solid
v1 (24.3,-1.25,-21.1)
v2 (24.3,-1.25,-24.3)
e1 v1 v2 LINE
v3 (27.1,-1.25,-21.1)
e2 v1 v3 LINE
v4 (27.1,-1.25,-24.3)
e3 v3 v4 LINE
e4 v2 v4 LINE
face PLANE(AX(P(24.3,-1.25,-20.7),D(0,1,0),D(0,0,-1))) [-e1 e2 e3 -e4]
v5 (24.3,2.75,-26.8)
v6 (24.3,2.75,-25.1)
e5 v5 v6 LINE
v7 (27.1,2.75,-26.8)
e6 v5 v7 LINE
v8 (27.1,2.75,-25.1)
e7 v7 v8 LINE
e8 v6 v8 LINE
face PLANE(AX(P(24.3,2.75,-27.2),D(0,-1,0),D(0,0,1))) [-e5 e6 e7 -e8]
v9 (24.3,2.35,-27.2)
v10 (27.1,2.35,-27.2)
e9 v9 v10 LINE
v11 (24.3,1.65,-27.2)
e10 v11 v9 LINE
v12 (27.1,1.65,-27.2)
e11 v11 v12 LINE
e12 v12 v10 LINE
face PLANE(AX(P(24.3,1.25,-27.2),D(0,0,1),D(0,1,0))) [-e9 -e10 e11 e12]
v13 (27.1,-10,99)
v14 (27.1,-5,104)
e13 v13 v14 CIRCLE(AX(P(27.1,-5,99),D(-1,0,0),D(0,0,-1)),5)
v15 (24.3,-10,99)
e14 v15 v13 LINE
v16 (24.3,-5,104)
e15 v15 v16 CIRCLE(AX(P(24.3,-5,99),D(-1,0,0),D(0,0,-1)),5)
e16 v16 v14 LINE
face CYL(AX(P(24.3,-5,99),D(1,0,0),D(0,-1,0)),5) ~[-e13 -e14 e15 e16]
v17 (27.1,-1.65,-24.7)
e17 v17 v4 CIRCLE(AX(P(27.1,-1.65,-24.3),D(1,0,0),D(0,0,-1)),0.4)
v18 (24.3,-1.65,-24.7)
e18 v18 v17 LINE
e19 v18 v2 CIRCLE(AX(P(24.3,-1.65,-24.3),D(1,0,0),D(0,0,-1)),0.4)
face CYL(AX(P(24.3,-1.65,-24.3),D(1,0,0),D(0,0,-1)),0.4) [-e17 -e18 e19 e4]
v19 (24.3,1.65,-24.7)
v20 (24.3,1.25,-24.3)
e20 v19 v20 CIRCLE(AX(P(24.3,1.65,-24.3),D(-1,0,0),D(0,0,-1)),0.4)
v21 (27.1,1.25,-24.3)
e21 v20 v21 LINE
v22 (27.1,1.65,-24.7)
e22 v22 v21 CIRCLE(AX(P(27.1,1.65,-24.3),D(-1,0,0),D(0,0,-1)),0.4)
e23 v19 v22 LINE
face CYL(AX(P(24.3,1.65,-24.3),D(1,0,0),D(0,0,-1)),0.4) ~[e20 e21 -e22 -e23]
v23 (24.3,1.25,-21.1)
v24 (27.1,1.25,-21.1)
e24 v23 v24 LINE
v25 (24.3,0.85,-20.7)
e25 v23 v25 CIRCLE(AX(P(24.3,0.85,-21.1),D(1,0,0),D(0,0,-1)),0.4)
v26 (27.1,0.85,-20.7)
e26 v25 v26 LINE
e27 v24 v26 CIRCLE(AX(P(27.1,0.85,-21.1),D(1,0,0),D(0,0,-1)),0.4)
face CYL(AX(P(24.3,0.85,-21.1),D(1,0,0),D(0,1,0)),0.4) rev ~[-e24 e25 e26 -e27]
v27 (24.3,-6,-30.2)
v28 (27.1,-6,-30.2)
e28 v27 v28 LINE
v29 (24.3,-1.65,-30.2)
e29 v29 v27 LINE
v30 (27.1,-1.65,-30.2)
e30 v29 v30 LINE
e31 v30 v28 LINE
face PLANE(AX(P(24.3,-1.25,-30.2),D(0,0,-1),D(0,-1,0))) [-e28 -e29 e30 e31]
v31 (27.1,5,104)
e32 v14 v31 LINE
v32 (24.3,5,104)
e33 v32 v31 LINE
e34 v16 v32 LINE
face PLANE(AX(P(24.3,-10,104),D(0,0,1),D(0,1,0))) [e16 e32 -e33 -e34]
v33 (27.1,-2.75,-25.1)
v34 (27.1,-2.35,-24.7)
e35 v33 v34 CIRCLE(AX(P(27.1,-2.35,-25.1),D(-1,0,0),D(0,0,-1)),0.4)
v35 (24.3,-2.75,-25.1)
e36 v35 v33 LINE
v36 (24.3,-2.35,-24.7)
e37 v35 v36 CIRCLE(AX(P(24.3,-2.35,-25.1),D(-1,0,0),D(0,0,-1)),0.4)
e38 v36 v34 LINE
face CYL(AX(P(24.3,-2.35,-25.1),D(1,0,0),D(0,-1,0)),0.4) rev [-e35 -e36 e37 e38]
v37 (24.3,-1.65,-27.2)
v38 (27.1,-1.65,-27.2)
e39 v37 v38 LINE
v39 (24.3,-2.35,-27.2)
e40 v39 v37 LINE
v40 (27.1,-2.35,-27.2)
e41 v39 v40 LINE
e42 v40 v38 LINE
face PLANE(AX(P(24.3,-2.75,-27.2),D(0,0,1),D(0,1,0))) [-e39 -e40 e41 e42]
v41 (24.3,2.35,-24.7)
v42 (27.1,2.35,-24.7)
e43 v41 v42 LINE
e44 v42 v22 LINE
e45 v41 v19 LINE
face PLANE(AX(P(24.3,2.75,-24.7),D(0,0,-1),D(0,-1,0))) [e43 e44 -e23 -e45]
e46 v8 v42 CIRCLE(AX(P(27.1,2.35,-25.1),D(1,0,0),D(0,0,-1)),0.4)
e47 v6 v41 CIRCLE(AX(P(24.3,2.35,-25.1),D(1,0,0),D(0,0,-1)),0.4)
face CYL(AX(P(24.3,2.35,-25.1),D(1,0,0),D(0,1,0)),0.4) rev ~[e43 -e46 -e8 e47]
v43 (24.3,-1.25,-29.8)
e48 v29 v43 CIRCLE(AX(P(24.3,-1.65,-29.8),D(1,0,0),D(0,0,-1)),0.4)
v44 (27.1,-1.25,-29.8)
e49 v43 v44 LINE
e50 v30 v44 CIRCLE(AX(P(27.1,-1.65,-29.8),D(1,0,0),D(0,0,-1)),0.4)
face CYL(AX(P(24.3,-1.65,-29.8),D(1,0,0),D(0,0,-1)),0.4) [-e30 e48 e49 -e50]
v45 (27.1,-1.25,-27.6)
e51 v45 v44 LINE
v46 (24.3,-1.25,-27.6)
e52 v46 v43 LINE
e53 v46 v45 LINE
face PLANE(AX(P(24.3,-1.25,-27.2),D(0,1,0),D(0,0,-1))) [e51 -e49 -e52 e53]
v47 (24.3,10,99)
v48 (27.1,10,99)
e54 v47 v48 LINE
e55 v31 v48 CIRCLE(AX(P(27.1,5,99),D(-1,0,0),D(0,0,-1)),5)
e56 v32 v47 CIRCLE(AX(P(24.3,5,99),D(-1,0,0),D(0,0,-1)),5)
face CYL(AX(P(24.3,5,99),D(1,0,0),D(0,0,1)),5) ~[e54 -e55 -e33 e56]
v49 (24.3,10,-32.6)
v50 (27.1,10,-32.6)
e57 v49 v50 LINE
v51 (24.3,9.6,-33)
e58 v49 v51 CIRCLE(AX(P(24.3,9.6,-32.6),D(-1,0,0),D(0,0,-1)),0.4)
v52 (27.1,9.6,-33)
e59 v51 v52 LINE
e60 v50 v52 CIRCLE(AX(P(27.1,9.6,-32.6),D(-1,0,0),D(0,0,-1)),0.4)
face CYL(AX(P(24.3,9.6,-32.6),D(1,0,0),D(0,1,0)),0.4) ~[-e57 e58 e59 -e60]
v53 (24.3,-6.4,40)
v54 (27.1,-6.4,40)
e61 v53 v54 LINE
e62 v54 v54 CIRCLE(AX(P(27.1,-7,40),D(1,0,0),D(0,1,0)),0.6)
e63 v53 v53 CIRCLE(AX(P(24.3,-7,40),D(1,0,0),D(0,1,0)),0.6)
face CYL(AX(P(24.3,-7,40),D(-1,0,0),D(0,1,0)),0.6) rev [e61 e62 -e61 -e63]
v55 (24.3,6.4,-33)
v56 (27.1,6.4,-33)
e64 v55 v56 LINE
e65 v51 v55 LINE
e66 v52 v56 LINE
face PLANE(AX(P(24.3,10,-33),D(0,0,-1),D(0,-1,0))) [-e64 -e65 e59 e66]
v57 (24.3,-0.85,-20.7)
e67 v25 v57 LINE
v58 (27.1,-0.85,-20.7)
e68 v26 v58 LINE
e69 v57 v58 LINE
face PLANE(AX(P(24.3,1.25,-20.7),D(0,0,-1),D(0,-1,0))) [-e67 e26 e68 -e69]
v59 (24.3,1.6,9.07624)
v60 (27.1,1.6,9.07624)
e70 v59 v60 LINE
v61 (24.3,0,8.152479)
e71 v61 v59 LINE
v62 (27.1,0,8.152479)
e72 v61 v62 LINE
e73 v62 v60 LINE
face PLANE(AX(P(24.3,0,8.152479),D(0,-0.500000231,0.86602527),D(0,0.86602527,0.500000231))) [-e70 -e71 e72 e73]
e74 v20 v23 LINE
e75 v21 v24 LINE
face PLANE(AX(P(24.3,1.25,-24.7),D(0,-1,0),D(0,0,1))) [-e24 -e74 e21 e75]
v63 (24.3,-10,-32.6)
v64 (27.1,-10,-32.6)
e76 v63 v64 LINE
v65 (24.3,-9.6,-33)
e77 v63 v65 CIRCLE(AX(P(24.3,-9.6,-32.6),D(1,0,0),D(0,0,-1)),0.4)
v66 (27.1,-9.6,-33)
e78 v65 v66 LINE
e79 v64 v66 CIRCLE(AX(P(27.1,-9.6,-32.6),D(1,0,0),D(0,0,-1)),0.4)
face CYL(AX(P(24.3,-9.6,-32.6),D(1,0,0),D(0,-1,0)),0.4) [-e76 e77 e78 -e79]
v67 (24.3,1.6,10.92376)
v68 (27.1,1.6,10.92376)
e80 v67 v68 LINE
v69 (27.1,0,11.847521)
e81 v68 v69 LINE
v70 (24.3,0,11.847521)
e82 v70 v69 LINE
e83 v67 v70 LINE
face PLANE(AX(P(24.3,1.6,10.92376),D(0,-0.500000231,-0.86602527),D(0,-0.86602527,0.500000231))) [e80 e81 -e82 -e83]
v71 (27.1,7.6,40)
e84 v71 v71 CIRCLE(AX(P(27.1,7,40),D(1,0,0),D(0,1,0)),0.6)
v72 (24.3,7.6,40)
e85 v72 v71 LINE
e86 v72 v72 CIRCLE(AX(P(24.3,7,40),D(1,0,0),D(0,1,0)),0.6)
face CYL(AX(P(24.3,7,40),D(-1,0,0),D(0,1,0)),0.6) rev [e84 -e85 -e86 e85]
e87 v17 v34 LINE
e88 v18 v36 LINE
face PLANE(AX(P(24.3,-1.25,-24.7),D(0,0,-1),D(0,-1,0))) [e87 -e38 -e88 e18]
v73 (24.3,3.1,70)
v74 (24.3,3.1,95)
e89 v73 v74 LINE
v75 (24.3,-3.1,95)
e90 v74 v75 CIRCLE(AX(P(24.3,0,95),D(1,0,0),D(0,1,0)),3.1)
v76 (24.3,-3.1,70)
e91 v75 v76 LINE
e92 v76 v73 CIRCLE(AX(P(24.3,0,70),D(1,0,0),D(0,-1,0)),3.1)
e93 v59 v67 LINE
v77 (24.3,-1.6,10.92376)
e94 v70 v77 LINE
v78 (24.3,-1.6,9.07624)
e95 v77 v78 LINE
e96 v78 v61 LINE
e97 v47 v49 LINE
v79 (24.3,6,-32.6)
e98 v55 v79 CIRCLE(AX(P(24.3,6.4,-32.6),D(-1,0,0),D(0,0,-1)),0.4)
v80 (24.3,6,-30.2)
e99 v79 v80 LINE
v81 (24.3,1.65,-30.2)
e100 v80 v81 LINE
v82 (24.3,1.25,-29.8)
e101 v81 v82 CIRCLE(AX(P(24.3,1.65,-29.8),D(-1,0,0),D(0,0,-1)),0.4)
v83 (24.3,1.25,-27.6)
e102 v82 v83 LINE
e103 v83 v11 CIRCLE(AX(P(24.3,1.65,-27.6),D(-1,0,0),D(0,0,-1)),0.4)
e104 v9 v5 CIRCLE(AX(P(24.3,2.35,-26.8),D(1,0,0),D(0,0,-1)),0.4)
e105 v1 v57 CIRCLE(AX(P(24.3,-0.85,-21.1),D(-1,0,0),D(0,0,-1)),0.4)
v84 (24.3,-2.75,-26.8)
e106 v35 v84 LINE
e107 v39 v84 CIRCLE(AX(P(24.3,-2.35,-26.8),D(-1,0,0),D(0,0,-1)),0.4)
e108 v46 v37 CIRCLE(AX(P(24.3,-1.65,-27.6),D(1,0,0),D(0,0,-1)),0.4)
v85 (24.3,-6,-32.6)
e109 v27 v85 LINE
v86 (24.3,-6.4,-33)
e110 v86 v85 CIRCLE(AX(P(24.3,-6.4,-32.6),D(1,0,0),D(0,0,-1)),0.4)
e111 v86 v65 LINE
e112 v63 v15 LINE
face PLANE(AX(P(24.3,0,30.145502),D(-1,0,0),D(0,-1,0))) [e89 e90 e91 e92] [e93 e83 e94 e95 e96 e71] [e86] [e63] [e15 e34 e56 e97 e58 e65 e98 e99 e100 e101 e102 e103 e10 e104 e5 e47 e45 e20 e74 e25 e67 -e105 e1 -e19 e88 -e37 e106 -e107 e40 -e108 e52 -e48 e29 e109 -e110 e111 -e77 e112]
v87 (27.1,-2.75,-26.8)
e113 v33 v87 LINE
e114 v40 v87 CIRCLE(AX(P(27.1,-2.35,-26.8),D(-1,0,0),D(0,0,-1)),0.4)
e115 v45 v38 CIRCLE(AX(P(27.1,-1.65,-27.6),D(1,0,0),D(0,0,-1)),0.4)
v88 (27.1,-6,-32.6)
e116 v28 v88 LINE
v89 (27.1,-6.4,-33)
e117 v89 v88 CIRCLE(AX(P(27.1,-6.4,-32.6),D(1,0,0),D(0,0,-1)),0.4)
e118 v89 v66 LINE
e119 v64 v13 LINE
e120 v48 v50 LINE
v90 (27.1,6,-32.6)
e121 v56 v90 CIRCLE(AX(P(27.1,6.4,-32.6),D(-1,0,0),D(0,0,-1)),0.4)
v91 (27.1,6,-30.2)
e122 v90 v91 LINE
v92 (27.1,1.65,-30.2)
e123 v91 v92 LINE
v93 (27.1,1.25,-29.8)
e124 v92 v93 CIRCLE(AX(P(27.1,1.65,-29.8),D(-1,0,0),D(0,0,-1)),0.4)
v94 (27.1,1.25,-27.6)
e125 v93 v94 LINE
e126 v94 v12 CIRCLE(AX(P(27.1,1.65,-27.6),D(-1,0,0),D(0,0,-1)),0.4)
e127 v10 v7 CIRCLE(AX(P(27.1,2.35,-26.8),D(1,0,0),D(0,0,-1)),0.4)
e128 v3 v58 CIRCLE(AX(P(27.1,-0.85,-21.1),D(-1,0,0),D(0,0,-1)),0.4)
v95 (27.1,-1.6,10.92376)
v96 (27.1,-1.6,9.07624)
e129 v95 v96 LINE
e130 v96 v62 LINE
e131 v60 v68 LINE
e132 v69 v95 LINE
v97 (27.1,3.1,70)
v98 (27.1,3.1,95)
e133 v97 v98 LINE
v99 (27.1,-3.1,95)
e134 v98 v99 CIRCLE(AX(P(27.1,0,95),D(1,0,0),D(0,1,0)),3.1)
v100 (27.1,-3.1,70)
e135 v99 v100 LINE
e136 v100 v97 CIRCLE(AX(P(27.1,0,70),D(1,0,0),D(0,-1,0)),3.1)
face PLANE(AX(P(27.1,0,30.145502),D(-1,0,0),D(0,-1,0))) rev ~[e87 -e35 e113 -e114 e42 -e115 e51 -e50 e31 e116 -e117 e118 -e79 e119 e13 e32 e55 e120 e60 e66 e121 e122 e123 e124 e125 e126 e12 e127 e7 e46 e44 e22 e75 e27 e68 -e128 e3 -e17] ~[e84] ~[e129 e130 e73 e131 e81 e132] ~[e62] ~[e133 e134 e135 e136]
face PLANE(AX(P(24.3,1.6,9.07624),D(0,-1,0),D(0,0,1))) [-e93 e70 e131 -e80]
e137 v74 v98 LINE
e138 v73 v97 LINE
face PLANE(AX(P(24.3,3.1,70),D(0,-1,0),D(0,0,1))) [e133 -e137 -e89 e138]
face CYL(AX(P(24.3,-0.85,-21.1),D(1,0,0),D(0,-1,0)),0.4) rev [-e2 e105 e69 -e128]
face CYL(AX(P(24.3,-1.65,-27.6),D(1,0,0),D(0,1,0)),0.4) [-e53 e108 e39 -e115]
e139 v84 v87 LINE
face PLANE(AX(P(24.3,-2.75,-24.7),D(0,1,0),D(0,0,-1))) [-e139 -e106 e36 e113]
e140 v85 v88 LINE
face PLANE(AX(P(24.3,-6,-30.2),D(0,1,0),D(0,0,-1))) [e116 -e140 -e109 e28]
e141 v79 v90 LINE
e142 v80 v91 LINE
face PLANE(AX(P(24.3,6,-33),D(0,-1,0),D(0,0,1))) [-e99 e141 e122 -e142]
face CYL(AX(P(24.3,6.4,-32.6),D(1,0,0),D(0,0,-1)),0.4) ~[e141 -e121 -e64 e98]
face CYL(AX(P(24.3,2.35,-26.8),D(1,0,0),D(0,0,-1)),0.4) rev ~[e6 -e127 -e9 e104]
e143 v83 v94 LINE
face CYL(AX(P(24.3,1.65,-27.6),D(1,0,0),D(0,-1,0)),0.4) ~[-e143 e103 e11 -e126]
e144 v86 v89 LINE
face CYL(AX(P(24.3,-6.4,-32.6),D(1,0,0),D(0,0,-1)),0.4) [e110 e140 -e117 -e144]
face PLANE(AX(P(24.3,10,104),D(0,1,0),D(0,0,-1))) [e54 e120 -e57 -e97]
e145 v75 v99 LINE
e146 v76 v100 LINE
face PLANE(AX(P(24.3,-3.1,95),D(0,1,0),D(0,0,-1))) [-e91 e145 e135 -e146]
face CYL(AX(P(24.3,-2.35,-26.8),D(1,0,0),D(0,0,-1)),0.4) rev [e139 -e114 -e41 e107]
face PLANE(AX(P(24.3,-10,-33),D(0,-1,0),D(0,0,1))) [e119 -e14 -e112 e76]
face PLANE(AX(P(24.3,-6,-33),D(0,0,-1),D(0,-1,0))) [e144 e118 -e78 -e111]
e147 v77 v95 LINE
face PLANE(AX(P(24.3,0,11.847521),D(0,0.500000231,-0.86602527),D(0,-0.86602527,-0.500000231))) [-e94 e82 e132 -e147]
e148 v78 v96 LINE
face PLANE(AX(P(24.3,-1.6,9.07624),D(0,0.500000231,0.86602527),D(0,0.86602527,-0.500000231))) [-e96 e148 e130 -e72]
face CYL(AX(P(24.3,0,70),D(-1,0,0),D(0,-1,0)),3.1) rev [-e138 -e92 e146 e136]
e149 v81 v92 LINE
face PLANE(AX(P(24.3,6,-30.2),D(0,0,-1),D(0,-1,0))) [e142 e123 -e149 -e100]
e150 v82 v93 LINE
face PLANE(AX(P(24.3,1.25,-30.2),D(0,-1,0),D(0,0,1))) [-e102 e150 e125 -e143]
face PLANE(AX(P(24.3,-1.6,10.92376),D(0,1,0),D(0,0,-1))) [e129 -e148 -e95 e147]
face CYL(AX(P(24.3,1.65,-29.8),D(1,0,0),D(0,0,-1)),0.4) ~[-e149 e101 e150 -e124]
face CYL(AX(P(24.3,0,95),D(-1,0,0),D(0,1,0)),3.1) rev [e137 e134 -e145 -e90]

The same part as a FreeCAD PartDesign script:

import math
import FreeCAD as App
import Part
import Sketcher

V = App.Vector
Q = App.Units.Quantity


def edges_at(feature, points):
    """Names of the edges that pass closest to the given points."""
    edges = feature.Shape.Edges
    near = lambda p: min(range(len(edges)), key=lambda i: edges[i].distToShape(Part.Vertex(*p))[0])
    return sorted({f"Edge{near(p) + 1}" for p in points})


def add_polygon(sketch, points):
    """Adds a closed chain of lines whose ends are joined by coincident constraints."""
    first, n = sketch.GeometryCount, len(points)
    for a, b in zip(points, points[1:] + points[:1]):
        sketch.addGeometry(Part.LineSegment(App.Vector(*a, 0), App.Vector(*b, 0)), False)
    for i in range(n):
        sketch.addConstraint(Sketcher.Constraint("Coincident", first + i, 2, first + (i + 1) % n, 1))

doc = App.newDocument("Part")
body = doc.addObject("PartDesign::Body", "Body")

# Sketch on YZ plane
sketch1 = doc.addObject("Sketcher::SketchObject", "Sketch")
body.addObject(sketch1)
sketch1.AttachmentSupport = (doc.YZ_Plane, [""])
sketch1.MapMode = "FlatFace"
sketch1.AttachmentOffset = App.Placement(V(0, 0, -24.3), App.Rotation())
add_polygon(sketch1, [(-10, 84), (10, 84), (10, -53), (6, -53), (6, -50.2), (1.25, -50.2), (1.25, -47.2), (2.75, -47.2), (2.75, -44.7), (1.25, -44.7), (1.25, -40.7), (-1.25, -40.7), (-1.25, -44.7), (-2.75, -44.7), (-2.75, -47.2), (-1.25, -47.2), (-1.25, -50.2), (-6, -50.2), (-6, -53), (-10, -53)])  # lines 0-19
add_polygon(sketch1, [(-1.6, -9.07624), (-1.6, -10.92376), (0, -11.847521), (1.6, -10.92376), (1.6, -9.07624), (0, -8.152479)])  # lines 20-25
sketch1.addGeometry(Part.Circle(V(-7, 20, 0), V(0, 0, 1), 0.6), False)  # 26
sketch1.addGeometry(Part.Circle(V(7, 20, 0), V(0, 0, 1), 0.6), False)  # 27
sketch1.addGeometry(Part.LineSegment(V(-3.1, 75, 0), V(-3.1, 50, 0)), False)  # 28
sketch1.addGeometry(Part.ArcOfCircle(Part.Circle(V(0, 50, 0), V(0, 0, 1), 3.1), math.radians(180), math.radians(360)), False)  # 29
sketch1.addGeometry(Part.LineSegment(V(3.1, 50, 0), V(3.1, 75, 0)), False)  # 30
sketch1.addGeometry(Part.ArcOfCircle(Part.Circle(V(0, 75, 0), V(0, 0, 1), 3.1), math.radians(0), math.radians(180)), False)  # 31
sketch1.addConstraint(Sketcher.Constraint("Tangent", 28, 2, 29, 1))
sketch1.addConstraint(Sketcher.Constraint("Tangent", 29, 2, 30, 1))
sketch1.addConstraint(Sketcher.Constraint("Tangent", 30, 2, 31, 1))
sketch1.addConstraint(Sketcher.Constraint("Tangent", 31, 2, 28, 1))
sketch1.addConstraint(Sketcher.Constraint("Horizontal", 0))
sketch1.addConstraint(Sketcher.Constraint("Vertical", 1))
sketch1.addConstraint(Sketcher.Constraint("Horizontal", 2))
sketch1.addConstraint(Sketcher.Constraint("Vertical", 3))
sketch1.addConstraint(Sketcher.Constraint("Horizontal", 4))
sketch1.addConstraint(Sketcher.Constraint("Vertical", 5))
sketch1.addConstraint(Sketcher.Constraint("Horizontal", 6))
sketch1.addConstraint(Sketcher.Constraint("Vertical", 7))
sketch1.addConstraint(Sketcher.Constraint("Horizontal", 8))
sketch1.addConstraint(Sketcher.Constraint("Vertical", 9))
sketch1.addConstraint(Sketcher.Constraint("Horizontal", 10))
sketch1.addConstraint(Sketcher.Constraint("Vertical", 11))
sketch1.addConstraint(Sketcher.Constraint("Horizontal", 12))
sketch1.addConstraint(Sketcher.Constraint("Vertical", 13))
sketch1.addConstraint(Sketcher.Constraint("Horizontal", 14))
sketch1.addConstraint(Sketcher.Constraint("Vertical", 15))
sketch1.addConstraint(Sketcher.Constraint("Horizontal", 16))
sketch1.addConstraint(Sketcher.Constraint("Vertical", 17))
sketch1.addConstraint(Sketcher.Constraint("Horizontal", 18))
sketch1.addConstraint(Sketcher.Constraint("Vertical", 19))
sketch1.addConstraint(Sketcher.Constraint("Vertical", 20))
sketch1.addConstraint(Sketcher.Constraint("Vertical", 23))
sketch1.addConstraint(Sketcher.Constraint("Vertical", 28))
sketch1.addConstraint(Sketcher.Constraint("Vertical", 30))
sketch1.addConstraint(Sketcher.Constraint("Equal", 26, 27))
sketch1.addConstraint(Sketcher.Constraint("Symmetric", 26, 3, 27, 3, -2))
sketch1.addConstraint(Sketcher.Constraint("Symmetric", 8, 2, 11, 2, -2))
sketch1.addConstraint(Sketcher.Constraint("Symmetric", 6, 2, 13, 2, -2))
sketch1.addConstraint(Sketcher.Constraint("Symmetric", 4, 2, 15, 2, -2))
sketch1.addConstraint(Sketcher.Constraint("Symmetric", 2, 2, 17, 2, -2))
sketch1.addConstraint(Sketcher.Constraint("Symmetric", 20, 2, 22, 2, -2))
sketch1.addConstraint(Sketcher.Constraint("PointOnObject", 29, 3, -2))
sketch1.addConstraint(Sketcher.Constraint("PointOnObject", 21, 2, -2))
sketch1.addConstraint(Sketcher.Constraint("PointOnObject", 24, 2, -2))
sketch1.addConstraint(Sketcher.Constraint("Parallel", 21, 24))
sketch1.addConstraint(Sketcher.Constraint("Parallel", 22, 25))
sketch1.addConstraint(Sketcher.Constraint("Vertical", 5, 2, 8, 2))
sketch1.addConstraint(Sketcher.Constraint("Equal", 2, 18))
sketch1.addConstraint(Sketcher.Constraint("Equal", 10, 7))
sketch1.addConstraint(Sketcher.Constraint("Equal", 18, 9))
sketch1.addConstraint(Sketcher.Constraint("Diameter", 26, Q("1.2 mm")))
sketch1.addConstraint(Sketcher.Constraint("Radius", 29, Q("3.1 mm")))
sketch1.addConstraint(Sketcher.Constraint("DistanceX", 0, 1, 0, 2, Q("20 mm")))
sketch1.addConstraint(Sketcher.Constraint("DistanceX", 2, 2, 2, 1, Q("4 mm")))
sketch1.addConstraint(Sketcher.Constraint("DistanceY", 1, 2, 1, 1, Q("137 mm")))
sketch1.addConstraint(Sketcher.Constraint("DistanceY", 5, 1, 5, 2, Q("3 mm")))
sketch1.addConstraint(Sketcher.Constraint("DistanceY", 28, 2, 28, 1, Q("25 mm")))
sketch1.addConstraint(Sketcher.Constraint("Angle", 21, Q("-30.000015 deg")))
sketch1.addConstraint(Sketcher.Constraint("DistanceX", 6, 1, 6, 2, Q("1.5 mm")))
sketch1.addConstraint(Sketcher.Constraint("DistanceX", 10, 2, 10, 1, Q("2.5 mm")))
sketch1.addConstraint(Sketcher.Constraint("DistanceY", 3, 1, 3, 2, Q("2.8 mm")))
sketch1.addConstraint(Sketcher.Constraint("DistanceX", 26, 3, -1, 1, Q("7 mm")))
sketch1.addConstraint(Sketcher.Constraint("DistanceY", -1, 1, 26, 3, Q("20 mm")))
sketch1.addConstraint(Sketcher.Constraint("DistanceY", -1, 1, 29, 3, Q("50 mm")))
sketch1.addConstraint(Sketcher.Constraint("DistanceY", -1, 1, 0, 2, Q("84 mm")))
sketch1.addConstraint(Sketcher.Constraint("DistanceX", 20, 2, -1, 1, Q("1.6 mm")))
sketch1.addConstraint(Sketcher.Constraint("DistanceY", 20, 2, 20, 1, Q("1.84752 mm")))
sketch1.addConstraint(Sketcher.Constraint("DistanceY", 20, 2, -1, 1, Q("10.92376 mm")))
pad1 = doc.addObject("PartDesign::Pad", "Pad")
body.addObject(pad1)
pad1.Profile = sketch1
pad1.Length = 2.8
pad1.Reversed = True
doc.recompute()

fillet = doc.addObject("PartDesign::Fillet", "Fillet")
body.addObject(fillet)
fillet.Base = (pad1, edges_at(pad1, [
    (-25.7, 10, -53),
    (-25.7, 6, -53),
    (-25.7, -10, -53),
    (-25.7, -6, -53),
    (-25.7, 1.25, -50.2),
    (-25.7, -1.25, -50.2),
    (-25.7, 1.25, -40.7),
    (-25.7, -1.25, -40.7),
    (-25.7, 1.25, -47.2),
    (-25.7, -1.25, -47.2),
    (-25.7, 1.25, -44.7),
    (-25.7, -1.25, -44.7),
    (-25.7, -2.75, -47.2),
    (-25.7, 2.75, -47.2),
    (-25.7, 2.75, -44.7),
    (-25.7, -2.75, -44.7),
]))
fillet.Radius = 0.4
doc.recompute()

fillet2 = doc.addObject("PartDesign::Fillet", "Fillet001")
body.addObject(fillet2)
fillet2.Base = (fillet, edges_at(fillet, [(-25.7, 10, 84), (-25.7, -10, 84)]))
fillet2.Radius = 5
body2 = doc.addObject("PartDesign::Body", "Body001")
doc.recompute()

body.Placement = App.Placement(V(0, 0, 20), App.Rotation(V(0, 0, 1), 180))
boolean = doc.addObject("PartDesign::Boolean", "Boolean")
body2.addObject(boolean)
boolean.Type = "Fuse"
boolean.addObjects([body])

doc.recompute()
